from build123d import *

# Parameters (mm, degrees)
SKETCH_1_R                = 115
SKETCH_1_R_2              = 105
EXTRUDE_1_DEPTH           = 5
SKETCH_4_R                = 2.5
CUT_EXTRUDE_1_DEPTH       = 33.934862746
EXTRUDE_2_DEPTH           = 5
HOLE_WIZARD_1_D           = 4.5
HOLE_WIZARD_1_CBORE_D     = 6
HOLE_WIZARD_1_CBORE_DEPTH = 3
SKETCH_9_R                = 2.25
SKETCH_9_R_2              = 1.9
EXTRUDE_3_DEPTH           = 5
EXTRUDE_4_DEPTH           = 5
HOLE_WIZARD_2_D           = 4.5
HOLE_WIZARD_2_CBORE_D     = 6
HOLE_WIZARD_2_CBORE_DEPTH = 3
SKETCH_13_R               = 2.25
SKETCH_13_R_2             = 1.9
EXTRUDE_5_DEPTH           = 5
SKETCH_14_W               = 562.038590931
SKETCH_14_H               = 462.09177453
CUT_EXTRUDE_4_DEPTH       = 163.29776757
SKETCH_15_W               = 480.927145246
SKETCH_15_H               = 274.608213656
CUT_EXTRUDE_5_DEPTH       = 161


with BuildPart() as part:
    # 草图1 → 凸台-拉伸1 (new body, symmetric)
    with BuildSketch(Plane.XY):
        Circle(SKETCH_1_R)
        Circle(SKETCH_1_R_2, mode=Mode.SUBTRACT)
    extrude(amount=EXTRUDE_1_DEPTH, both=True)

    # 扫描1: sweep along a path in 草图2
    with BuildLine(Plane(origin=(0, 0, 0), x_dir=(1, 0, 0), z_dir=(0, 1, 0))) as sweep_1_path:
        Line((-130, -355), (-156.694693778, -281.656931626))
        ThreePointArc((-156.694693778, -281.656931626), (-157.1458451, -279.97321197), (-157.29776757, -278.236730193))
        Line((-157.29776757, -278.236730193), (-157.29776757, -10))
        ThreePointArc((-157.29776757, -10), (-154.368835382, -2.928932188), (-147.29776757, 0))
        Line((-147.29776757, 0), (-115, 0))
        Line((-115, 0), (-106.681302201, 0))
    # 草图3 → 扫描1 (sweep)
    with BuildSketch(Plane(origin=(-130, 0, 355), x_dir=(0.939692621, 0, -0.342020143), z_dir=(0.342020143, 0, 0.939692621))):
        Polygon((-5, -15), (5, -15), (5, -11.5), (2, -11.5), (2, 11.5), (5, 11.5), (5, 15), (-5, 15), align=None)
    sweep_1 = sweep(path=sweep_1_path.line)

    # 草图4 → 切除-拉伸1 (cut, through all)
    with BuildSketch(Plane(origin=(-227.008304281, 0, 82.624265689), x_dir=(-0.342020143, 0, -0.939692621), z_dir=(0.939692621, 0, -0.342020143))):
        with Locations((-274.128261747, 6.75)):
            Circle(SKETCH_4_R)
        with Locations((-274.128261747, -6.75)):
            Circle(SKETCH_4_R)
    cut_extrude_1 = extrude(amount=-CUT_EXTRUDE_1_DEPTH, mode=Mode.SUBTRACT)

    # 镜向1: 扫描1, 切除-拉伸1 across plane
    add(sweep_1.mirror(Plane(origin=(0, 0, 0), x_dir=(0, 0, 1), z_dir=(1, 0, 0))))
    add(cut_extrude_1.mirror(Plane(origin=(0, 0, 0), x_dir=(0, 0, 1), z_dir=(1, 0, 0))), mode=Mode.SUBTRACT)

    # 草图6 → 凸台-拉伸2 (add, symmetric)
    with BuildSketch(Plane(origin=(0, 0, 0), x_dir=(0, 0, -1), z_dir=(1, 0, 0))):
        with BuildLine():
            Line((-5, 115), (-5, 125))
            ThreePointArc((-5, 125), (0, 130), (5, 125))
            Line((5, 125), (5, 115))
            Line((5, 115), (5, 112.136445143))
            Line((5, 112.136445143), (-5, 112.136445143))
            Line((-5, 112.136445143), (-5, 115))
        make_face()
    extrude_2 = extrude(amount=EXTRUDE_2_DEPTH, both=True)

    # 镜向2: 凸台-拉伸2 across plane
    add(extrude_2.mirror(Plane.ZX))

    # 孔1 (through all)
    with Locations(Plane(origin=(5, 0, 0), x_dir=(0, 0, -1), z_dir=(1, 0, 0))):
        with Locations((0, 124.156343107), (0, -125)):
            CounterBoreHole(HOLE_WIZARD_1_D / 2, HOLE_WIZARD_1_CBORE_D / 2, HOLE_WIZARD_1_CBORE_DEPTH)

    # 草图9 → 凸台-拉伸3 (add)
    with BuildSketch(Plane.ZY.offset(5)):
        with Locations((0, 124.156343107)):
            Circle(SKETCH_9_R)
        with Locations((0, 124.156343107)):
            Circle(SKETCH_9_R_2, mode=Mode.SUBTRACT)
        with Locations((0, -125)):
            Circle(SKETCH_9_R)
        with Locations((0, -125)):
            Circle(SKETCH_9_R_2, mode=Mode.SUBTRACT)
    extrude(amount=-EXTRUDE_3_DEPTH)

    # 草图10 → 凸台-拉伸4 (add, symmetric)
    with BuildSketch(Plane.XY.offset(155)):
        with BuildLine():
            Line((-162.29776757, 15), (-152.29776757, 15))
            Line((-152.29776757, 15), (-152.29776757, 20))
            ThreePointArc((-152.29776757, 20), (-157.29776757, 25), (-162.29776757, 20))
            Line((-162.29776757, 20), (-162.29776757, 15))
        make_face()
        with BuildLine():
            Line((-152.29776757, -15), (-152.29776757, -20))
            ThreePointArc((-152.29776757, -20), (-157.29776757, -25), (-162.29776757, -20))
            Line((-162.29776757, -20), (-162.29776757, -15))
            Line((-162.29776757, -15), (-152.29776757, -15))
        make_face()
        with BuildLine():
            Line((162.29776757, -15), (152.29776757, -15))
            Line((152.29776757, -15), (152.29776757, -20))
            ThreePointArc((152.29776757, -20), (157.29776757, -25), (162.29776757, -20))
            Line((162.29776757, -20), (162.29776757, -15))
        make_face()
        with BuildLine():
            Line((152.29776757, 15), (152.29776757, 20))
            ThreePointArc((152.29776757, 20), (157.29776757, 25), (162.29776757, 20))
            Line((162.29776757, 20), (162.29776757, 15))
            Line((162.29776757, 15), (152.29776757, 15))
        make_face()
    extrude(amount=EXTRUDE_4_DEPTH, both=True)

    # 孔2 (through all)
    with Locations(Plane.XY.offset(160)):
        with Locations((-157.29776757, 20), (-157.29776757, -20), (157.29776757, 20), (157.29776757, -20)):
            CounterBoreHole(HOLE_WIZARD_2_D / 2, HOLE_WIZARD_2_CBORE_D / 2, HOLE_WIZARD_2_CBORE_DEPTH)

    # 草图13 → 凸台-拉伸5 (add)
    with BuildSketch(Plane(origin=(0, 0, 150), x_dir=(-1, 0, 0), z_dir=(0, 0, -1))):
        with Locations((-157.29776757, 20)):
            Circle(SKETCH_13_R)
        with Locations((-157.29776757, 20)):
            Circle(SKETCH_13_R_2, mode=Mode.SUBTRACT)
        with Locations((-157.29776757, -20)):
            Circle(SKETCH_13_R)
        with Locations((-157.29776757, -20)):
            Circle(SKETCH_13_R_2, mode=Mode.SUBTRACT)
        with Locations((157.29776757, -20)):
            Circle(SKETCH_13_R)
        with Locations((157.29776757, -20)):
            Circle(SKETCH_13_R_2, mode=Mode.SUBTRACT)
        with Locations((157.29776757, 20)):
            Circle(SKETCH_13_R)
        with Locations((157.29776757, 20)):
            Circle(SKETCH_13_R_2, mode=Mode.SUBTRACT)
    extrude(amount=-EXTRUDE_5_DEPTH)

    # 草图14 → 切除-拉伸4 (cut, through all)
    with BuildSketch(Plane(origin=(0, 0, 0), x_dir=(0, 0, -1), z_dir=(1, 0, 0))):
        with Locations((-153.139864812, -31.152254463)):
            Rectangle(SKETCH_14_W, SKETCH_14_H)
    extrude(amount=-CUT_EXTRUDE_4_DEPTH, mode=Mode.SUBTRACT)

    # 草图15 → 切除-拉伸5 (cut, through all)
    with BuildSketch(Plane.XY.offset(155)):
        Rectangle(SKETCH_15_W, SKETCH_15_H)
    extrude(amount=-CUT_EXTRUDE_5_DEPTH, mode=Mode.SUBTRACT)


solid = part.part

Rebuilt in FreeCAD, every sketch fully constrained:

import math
import FreeCAD as App
import Part
import Sketcher
Q = App.Units.Quantity

doc = App.newDocument("Part")
body = doc.addObject("PartDesign::Body", "Body")

# Sketch on XY plane
sketch1 = body.newObject("Sketcher::SketchObject", "Sketch")
sketch1.AttachmentSupport = (doc.getObject("XY_Plane"), [""])
sketch1.MapMode = "FlatFace"
sketch1.addGeometry(Part.Circle(App.Vector(0, 0, 0), App.Vector(0, 0, 1), 115), False)
sketch1.addGeometry(Part.Circle(App.Vector(0, 0, 0), App.Vector(0, 0, 1), 105), False)
sketch1.addConstraint(Sketcher.Constraint("Coincident", 0, 3, -1, 1))
sketch1.addConstraint(Sketcher.Constraint("Coincident", 1, 3, -1, 1))
sketch1.addConstraint(Sketcher.Constraint("Diameter", 0, Q("230 mm")))
sketch1.addConstraint(Sketcher.Constraint("Diameter", 1, Q("210 mm")))
pad1 = body.newObject("PartDesign::Pad", "Pad")
pad1.Profile = sketch1
pad1.Length = 10
pad1.Midplane = True

# Sketch on an angled plane
sketch2 = body.newObject("Sketcher::SketchObject", "Sketch001")
sketch2.Placement = App.Placement(App.Vector(-130, 0, 355), App.Rotation(App.Vector(0.939692621, 0, -0.342020143), App.Vector(0, 1, 0), App.Vector(0.342020143, 0, 0.939692621), "ZXY"))
sketch2.addGeometry(Part.LineSegment(App.Vector(-5, -15, 0), App.Vector(5, -15, 0)), False)
sketch2.addGeometry(Part.LineSegment(App.Vector(5, -15, 0), App.Vector(5, -11.5, 0)), False)
sketch2.addGeometry(Part.LineSegment(App.Vector(5, -11.5, 0), App.Vector(2, -11.5, 0)), False)
sketch2.addGeometry(Part.LineSegment(App.Vector(2, -11.5, 0), App.Vector(2, 11.5, 0)), False)
sketch2.addGeometry(Part.LineSegment(App.Vector(2, 11.5, 0), App.Vector(5, 11.5, 0)), False)
sketch2.addGeometry(Part.LineSegment(App.Vector(5, 11.5, 0), App.Vector(5, 15, 0)), False)
sketch2.addGeometry(Part.LineSegment(App.Vector(5, 15, 0), App.Vector(-5, 15, 0)), False)
sketch2.addGeometry(Part.LineSegment(App.Vector(-5, 15, 0), App.Vector(-5, -15, 0)), False)
sketch2.addConstraint(Sketcher.Constraint("Coincident", 0, 2, 1, 1))
sketch2.addConstraint(Sketcher.Constraint("Coincident", 1, 2, 2, 1))
sketch2.addConstraint(Sketcher.Constraint("Coincident", 2, 2, 3, 1))
sketch2.addConstraint(Sketcher.Constraint("Coincident", 3, 2, 4, 1))
sketch2.addConstraint(Sketcher.Constraint("Coincident", 4, 2, 5, 1))
sketch2.addConstraint(Sketcher.Constraint("Coincident", 5, 2, 6, 1))
sketch2.addConstraint(Sketcher.Constraint("Coincident", 6, 2, 7, 1))
sketch2.addConstraint(Sketcher.Constraint("Coincident", 7, 2, 0, 1))
sketch2.addConstraint(Sketcher.Constraint("Horizontal", 0))
sketch2.addConstraint(Sketcher.Constraint("Vertical", 1))
sketch2.addConstraint(Sketcher.Constraint("Horizontal", 2))
sketch2.addConstraint(Sketcher.Constraint("Vertical", 3))
sketch2.addConstraint(Sketcher.Constraint("Horizontal", 4))
sketch2.addConstraint(Sketcher.Constraint("Vertical", 5))
sketch2.addConstraint(Sketcher.Constraint("Horizontal", 6))
sketch2.addConstraint(Sketcher.Constraint("Vertical", 7))
sketch2.addConstraint(Sketcher.Constraint("Symmetric", 0, 2, 6, 2, -1, 1))
sketch2.addConstraint(Sketcher.Constraint("Symmetric", 1, 2, 4, 2, -1))
sketch2.addConstraint(Sketcher.Constraint("DistanceX", 0, 1, 0, 2, Q("10 mm")))
sketch2.addConstraint(Sketcher.Constraint("DistanceX", 2, 2, 2, 1, Q("3 mm")))
sketch2.addConstraint(Sketcher.Constraint("DistanceY", 3, 1, 3, 2, Q("23 mm")))
sketch2.addConstraint(Sketcher.Constraint("DistanceY", 7, 2, 7, 1, Q("30 mm")))

# Sketch on XZ plane
sketch3 = body.newObject("Sketcher::SketchObject", "Sketch002")
sketch3.AttachmentSupport = (doc.getObject("XZ_Plane"), [""])
sketch3.MapMode = "FlatFace"
sketch3.addGeometry(Part.LineSegment(App.Vector(-130, 355, 0), App.Vector(-156.7, 281.7, 0)), False)
sketch3.addGeometry(Part.ArcOfCircle(Part.Circle(App.Vector(-147.3, 278.2, 0), App.Vector(0, 0, 1), 10), math.radians(160), math.radians(180)), False)
sketch3.addGeometry(Part.LineSegment(App.Vector(-157.3, 278.2, 0), App.Vector(-157.3, 10, 0)), False)
sketch3.addGeometry(Part.ArcOfCircle(Part.Circle(App.Vector(-147.3, 10, 0), App.Vector(0, 0, 1), 10), math.radians(180), math.radians(270)), False)
sketch3.addGeometry(Part.LineSegment(App.Vector(-147.3, 0, 0), App.Vector(-106.7, 0, 0)), False)
sketch3.addConstraint(Sketcher.Constraint("Tangent", 0, 2, 1, 1))
sketch3.addConstraint(Sketcher.Constraint("Tangent", 1, 2, 2, 1))
sketch3.addConstraint(Sketcher.Constraint("Tangent", 2, 2, 3, 1))
sketch3.addConstraint(Sketcher.Constraint("Tangent", 3, 2, 4, 1))
sketch3.addConstraint(Sketcher.Constraint("Vertical", 2))
sketch3.addConstraint(Sketcher.Constraint("Horizontal", 4))
sketch3.addConstraint(Sketcher.Constraint("Equal", 1, 3))
sketch3.addConstraint(Sketcher.Constraint("PointOnObject", 3, 2, -1))
sketch3.addConstraint(Sketcher.Constraint("Radius", 1, Q("10 mm")))
sketch3.addConstraint(Sketcher.Constraint("Angle", 0, Q("-110 deg")))
sketch3.addConstraint(Sketcher.Constraint("DistanceX", 0, 1, -1, 1, Q("130 mm")))
sketch3.addConstraint(Sketcher.Constraint("DistanceY", -1, 1, 0, 1, Q("355 mm")))
sketch3.addConstraint(Sketcher.Constraint("DistanceY", 2, 2, 2, 1, Q("268.23673 mm")))
sketch3.addConstraint(Sketcher.Constraint("DistanceX", 4, 1, 4, 2, Q("40.616465 mm")))
doc.recompute()

additivepipe = body.newObject("PartDesign::AdditivePipe", "AdditivePipe")
additivepipe.Profile = sketch2
additivepipe.Spine = (sketch3, ["Edge1", "Edge2", "Edge3", "Edge4", "Edge5"])

# Sketch on an angled plane
sketch4 = body.newObject("Sketcher::SketchObject", "Sketch003")
sketch4.Placement = App.Placement(App.Vector(-227.008304, 0, 82.624266), App.Rotation(App.Vector(-0.342020143, 0, -0.939692621), App.Vector(0, 1, 0), App.Vector(0.939692621, 0, -0.342020143), "ZXY"))
sketch4.addGeometry(Part.Circle(App.Vector(-274.1, 6.8, 0), App.Vector(0, 0, 1), 2.5), False)
sketch4.addGeometry(Part.Circle(App.Vector(-274.1, -6.8, 0), App.Vector(0, 0, 1), 2.5), False)
sketch4.addConstraint(Sketcher.Constraint("Equal", 0, 1))
sketch4.addConstraint(Sketcher.Constraint("Symmetric", 0, 3, 1, 3, -1))
sketch4.addConstraint(Sketcher.Constraint("Diameter", 0, Q("5 mm")))
sketch4.addConstraint(Sketcher.Constraint("DistanceY", 1, 3, 0, 3, Q("13.5 mm")))
sketch4.addConstraint(Sketcher.Constraint("DistanceX", 0, 3, -1, 1, Q("274.128262 mm")))
pocket1 = body.newObject("PartDesign::Pocket", "Pocket")
pocket1.Profile = sketch4
pocket1.Type = "ThroughAll"
doc.recompute()

mirrored = body.newObject("PartDesign::Mirrored", "Mirrored")
mirrored.Originals = [additivepipe, pocket1]
mirrored.MirrorPlane = (doc.getObject("YZ_Plane"), [""])
body.Tip = mirrored

# Sketch on YZ plane
sketch5 = body.newObject("Sketcher::SketchObject", "Sketch004")
sketch5.AttachmentSupport = (doc.getObject("YZ_Plane"), [""])
sketch5.MapMode = "FlatFace"
sketch5.addGeometry(Part.ArcOfCircle(Part.Circle(App.Vector(125, 0, 0), App.Vector(0, 0, 1), 5), math.radians(-90), math.radians(90)), False)
sketch5.addGeometry(Part.LineSegment(App.Vector(125, 5, 0), App.Vector(112, 5, 0)), False)
sketch5.addGeometry(Part.LineSegment(App.Vector(112, 5, 0), App.Vector(112, -5, 0)), False)
sketch5.addGeometry(Part.LineSegment(App.Vector(112, -5, 0), App.Vector(125, -5, 0)), False)
sketch5.addConstraint(Sketcher.Constraint("Tangent", 0, 2, 1, 1))
sketch5.addConstraint(Sketcher.Constraint("Coincident", 1, 2, 2, 1))
sketch5.addConstraint(Sketcher.Constraint("Coincident", 2, 2, 3, 1))
sketch5.addConstraint(Sketcher.Constraint("Tangent", 3, 2, 0, 1))
sketch5.addConstraint(Sketcher.Constraint("Horizontal", 1))
sketch5.addConstraint(Sketcher.Constraint("Vertical", 2))
sketch5.addConstraint(Sketcher.Constraint("Horizontal", 3))
sketch5.addConstraint(Sketcher.Constraint("PointOnObject", 0, 3, -1))
sketch5.addConstraint(Sketcher.Constraint("Radius", 0, Q("5 mm")))
sketch5.addConstraint(Sketcher.Constraint("DistanceX", -1, 1, 0, 3, Q("125 mm")))
sketch5.addConstraint(Sketcher.Constraint("DistanceX", 1, 2, 1, 1, Q("12.863555 mm")))
pad2 = body.newObject("PartDesign::Pad", "Pad001")
pad2.Profile = sketch5
pad2.Length = 10
pad2.Midplane = True
doc.recompute()

mirrored2 = body.newObject("PartDesign::Mirrored", "Mirrored001")
mirrored2.Originals = [pad2]
mirrored2.MirrorPlane = (doc.getObject("XZ_Plane"), [""])
body.Tip = mirrored2

# Sketch on YZ plane
sketch6 = body.newObject("Sketcher::SketchObject", "Sketch005")
sketch6.AttachmentSupport = (doc.getObject("YZ_Plane"), [""])
sketch6.MapMode = "FlatFace"
sketch6.AttachmentOffset = App.Placement(App.Vector(0, 0, 5), App.Rotation())
sketch6.addGeometry(Part.Circle(App.Vector(124.2, 0, 0), App.Vector(0, 0, 1), 2.2), False)
sketch6.addGeometry(Part.Circle(App.Vector(-125, 0, 0), App.Vector(0, 0, 1), 2.2), False)
sketch6.addConstraint(Sketcher.Constraint("Equal", 0, 1))
sketch6.addConstraint(Sketcher.Constraint("PointOnObject", 0, 3, -1))
sketch6.addConstraint(Sketcher.Constraint("PointOnObject", 1, 3, -1))
sketch6.addConstraint(Sketcher.Constraint("Diameter", 0, Q("4.5 mm")))
sketch6.addConstraint(Sketcher.Constraint("DistanceX", 1, 3, -1, 1, Q("125 mm")))
sketch6.addConstraint(Sketcher.Constraint("DistanceX", -1, 1, 0, 3, Q("124.156343 mm")))
doc.recompute()
hole = body.newObject("PartDesign::Hole", "Hole")
hole.Profile = sketch6
hole.ThreadType = "None"
hole.Diameter = 4.5
hole.DepthType = "ThroughAll"
hole.HoleCutType = "Counterbore"
hole.HoleCutDiameter = 6
hole.HoleCutDepth = 3

# Sketch on YZ plane
sketch7 = body.newObject("Sketcher::SketchObject", "Sketch006")
sketch7.AttachmentSupport = (doc.getObject("YZ_Plane"), [""])
sketch7.MapMode = "FlatFace"
sketch7.AttachmentOffset = App.Placement(App.Vector(0, 0, -5), App.Rotation())
sketch7.addGeometry(Part.Circle(App.Vector(124.2, 0, 0), App.Vector(0, 0, 1), 2.2), False)
sketch7.addGeometry(Part.Circle(App.Vector(124.2, 0, 0), App.Vector(0, 0, 1), 1.9), False)
sketch7.addGeometry(Part.Circle(App.Vector(-125, 0, 0), App.Vector(0, 0, 1), 2.2), False)
sketch7.addGeometry(Part.Circle(App.Vector(-125, 0, 0), App.Vector(0, 0, 1), 1.9), False)
sketch7.addConstraint(Sketcher.Constraint("Coincident", 1, 3, 0, 3))
sketch7.addConstraint(Sketcher.Constraint("Coincident", 3, 3, 2, 3))
sketch7.addConstraint(Sketcher.Constraint("Equal", 0, 2))
sketch7.addConstraint(Sketcher.Constraint("Equal", 1, 3))
sketch7.addConstraint(Sketcher.Constraint("PointOnObject", 0, 3, -1))
sketch7.addConstraint(Sketcher.Constraint("PointOnObject", 2, 3, -1))
sketch7.addConstraint(Sketcher.Constraint("Diameter", 0, Q("4.5 mm")))
sketch7.addConstraint(Sketcher.Constraint("Diameter", 1, Q("3.8 mm")))
sketch7.addConstraint(Sketcher.Constraint("DistanceX", 2, 3, -1, 1, Q("125 mm")))
sketch7.addConstraint(Sketcher.Constraint("DistanceX", -1, 1, 0, 3, Q("124.156343 mm")))
pad3 = body.newObject("PartDesign::Pad", "Pad002")
pad3.Profile = sketch7
pad3.Length = 5

# Sketch on XY plane
sketch8 = body.newObject("Sketcher::SketchObject", "Sketch007")
sketch8.AttachmentSupport = (doc.getObject("XY_Plane"), [""])
sketch8.MapMode = "FlatFace"
sketch8.AttachmentOffset = App.Placement(App.Vector(0, 0, 155), App.Rotation())
sketch8.addGeometry(Part.LineSegment(App.Vector(-162, 15, 0), App.Vector(-152, 15, 0)), False)
sketch8.addGeometry(Part.LineSegment(App.Vector(-152, 15, 0), App.Vector(-152, 20, 0)), False)
sketch8.addGeometry(Part.ArcOfCircle(Part.Circle(App.Vector(-157, 20, 0), App.Vector(0, 0, 1), 5), math.radians(0), math.radians(180)), False)
sketch8.addGeometry(Part.LineSegment(App.Vector(-162, 20, 0), App.Vector(-162, 15, 0)), False)
sketch8.addGeometry(Part.LineSegment(App.Vector(-152, -20, 0), App.Vector(-152, -15, 0)), False)
sketch8.addGeometry(Part.LineSegment(App.Vector(-152, -15, 0), App.Vector(-162, -15, 0)), False)
sketch8.addGeometry(Part.LineSegment(App.Vector(-162, -15, 0), App.Vector(-162, -20, 0)), False)
sketch8.addGeometry(Part.ArcOfCircle(Part.Circle(App.Vector(-157, -20, 0), App.Vector(0, 0, 1), 5), math.radians(180), math.radians(360)), False)
sketch8.addGeometry(Part.LineSegment(App.Vector(162, -15, 0), App.Vector(152, -15, 0)), False)
sketch8.addGeometry(Part.LineSegment(App.Vector(152, -15, 0), App.Vector(152, -20, 0)), False)
sketch8.addGeometry(Part.ArcOfCircle(Part.Circle(App.Vector(157, -20, 0), App.Vector(0, 0, 1), 5), math.radians(180), math.radians(360)), False)
sketch8.addGeometry(Part.LineSegment(App.Vector(162, -20, 0), App.Vector(162, -15, 0)), False)
sketch8.addGeometry(Part.LineSegment(App.Vector(152, 20, 0), App.Vector(152, 15, 0)), False)
sketch8.addGeometry(Part.LineSegment(App.Vector(152, 15, 0), App.Vector(162, 15, 0)), False)
sketch8.addGeometry(Part.LineSegment(App.Vector(162, 15, 0), App.Vector(162, 20, 0)), False)
sketch8.addGeometry(Part.ArcOfCircle(Part.Circle(App.Vector(157, 20, 0), App.Vector(0, 0, 1), 5), math.radians(0), math.radians(180)), False)
sketch8.addConstraint(Sketcher.Constraint("Coincident", 0, 2, 1, 1))
sketch8.addConstraint(Sketcher.Constraint("Tangent", 1, 2, 2, 1))
sketch8.addConstraint(Sketcher.Constraint("Tangent", 2, 2, 3, 1))
sketch8.addConstraint(Sketcher.Constraint("Coincident", 3, 2, 0, 1))
sketch8.addConstraint(Sketcher.Constraint("Coincident", 4, 2, 5, 1))
sketch8.addConstraint(Sketcher.Constraint("Coincident", 5, 2, 6, 1))
sketch8.addConstraint(Sketcher.Constraint("Tangent", 6, 2, 7, 1))
sketch8.addConstraint(Sketcher.Constraint("Tangent", 7, 2, 4, 1))
sketch8.addConstraint(Sketcher.Constraint("Coincident", 8, 2, 9, 1))
sketch8.addConstraint(Sketcher.Constraint("Tangent", 9, 2, 10, 1))
sketch8.addConstraint(Sketcher.Constraint("Tangent", 10, 2, 11, 1))
sketch8.addConstraint(Sketcher.Constraint("Coincident", 11, 2, 8, 1))
sketch8.addConstraint(Sketcher.Constraint("Coincident", 12, 2, 13, 1))
sketch8.addConstraint(Sketcher.Constraint("Coincident", 13, 2, 14, 1))
sketch8.addConstraint(Sketcher.Constraint("Tangent", 14, 2, 15, 1))
sketch8.addConstraint(Sketcher.Constraint("Tangent", 15, 2, 12, 1))
sketch8.addConstraint(Sketcher.Constraint("Horizontal", 0))
sketch8.addConstraint(Sketcher.Constraint("Vertical", 1))
sketch8.addConstraint(Sketcher.Constraint("Vertical", 3))
sketch8.addConstraint(Sketcher.Constraint("Vertical", 4))
sketch8.addConstraint(Sketcher.Constraint("Horizontal", 5))
sketch8.addConstraint(Sketcher.Constraint("Vertical", 6))
sketch8.addConstraint(Sketcher.Constraint("Horizontal", 8))
sketch8.addConstraint(Sketcher.Constraint("Vertical", 9))
sketch8.addConstraint(Sketcher.Constraint("Vertical", 11))
sketch8.addConstraint(Sketcher.Constraint("Vertical", 12))
sketch8.addConstraint(Sketcher.Constraint("Horizontal", 13))
sketch8.addConstraint(Sketcher.Constraint("Vertical", 14))
sketch8.addConstraint(Sketcher.Constraint("Equal", 2, 7))
sketch8.addConstraint(Sketcher.Constraint("Equal", 7, 10))
sketch8.addConstraint(Sketcher.Constraint("Equal", 10, 15))
sketch8.addConstraint(Sketcher.Constraint("Symmetric", 2, 3, 10, 3, -1, 1))
sketch8.addConstraint(Sketcher.Constraint("Symmetric", 7, 3, 15, 3, -1, 1))
sketch8.addConstraint(Sketcher.Constraint("Symmetric", 7, 3, 10, 3, -2))
sketch8.addConstraint(Sketcher.Constraint("Horizontal", 5, 2, 8, 2))
sketch8.addConstraint(Sketcher.Constraint("Horizontal", 3, 2, 12, 2))
sketch8.addConstraint(Sketcher.Constraint("Equal", 3, 4))
sketch8.addConstraint(Sketcher.Constraint("Radius", 2, Q("5 mm")))
sketch8.addConstraint(Sketcher.Constraint("DistanceY", 1, 1, 1, 2, Q("5 mm")))
sketch8.addConstraint(Sketcher.Constraint("DistanceY", -1, 1, 2, 3, Q("20 mm")))
sketch8.addConstraint(Sketcher.Constraint("DistanceX", 2, 3, -1, 1, Q("157.297768 mm")))
pad4 = body.newObject("PartDesign::Pad", "Pad003")
pad4.Profile = sketch8
pad4.Length = 10
pad4.Midplane = True

# Sketch on XY plane
sketch9 = body.newObject("Sketcher::SketchObject", "Sketch008")
sketch9.AttachmentSupport = (doc.getObject("XY_Plane"), [""])
sketch9.MapMode = "FlatFace"
sketch9.AttachmentOffset = App.Placement(App.Vector(0, 0, 160), App.Rotation())
sketch9.addGeometry(Part.Circle(App.Vector(-157.3, 20, 0), App.Vector(0, 0, 1), 2.2), False)
sketch9.addGeometry(Part.Circle(App.Vector(-157.3, -20, 0), App.Vector(0, 0, 1), 2.2), False)
sketch9.addGeometry(Part.Circle(App.Vector(157.3, 20, 0), App.Vector(0, 0, 1), 2.2), False)
sketch9.addGeometry(Part.Circle(App.Vector(157.3, -20, 0), App.Vector(0, 0, 1), 2.2), False)
sketch9.addConstraint(Sketcher.Constraint("Equal", 0, 1))
sketch9.addConstraint(Sketcher.Constraint("Equal", 1, 2))
sketch9.addConstraint(Sketcher.Constraint("Equal", 2, 3))
sketch9.addConstraint(Sketcher.Constraint("Symmetric", 1, 3, 2, 3, -1, 1))
sketch9.addConstraint(Sketcher.Constraint("Symmetric", 0, 3, 3, 3, -1, 1))
sketch9.addConstraint(Sketcher.Constraint("Symmetric", 0, 3, 2, 3, -2))
sketch9.addConstraint(Sketcher.Constraint("Diameter", 0, Q("4.5 mm")))
sketch9.addConstraint(Sketcher.Constraint("DistanceY", -1, 1, 0, 3, Q("20 mm")))
sketch9.addConstraint(Sketcher.Constraint("DistanceX", 0, 3, -1, 1, Q("157.297768 mm")))
doc.recompute()
hole2 = body.newObject("PartDesign::Hole", "Hole001")
hole2.Profile = sketch9
hole2.ThreadType = "None"
hole2.Diameter = 4.5
hole2.DepthType = "ThroughAll"
hole2.HoleCutType = "Counterbore"
hole2.HoleCutDiameter = 6
hole2.HoleCutDepth = 3

# Sketch on XY plane
sketch10 = body.newObject("Sketcher::SketchObject", "Sketch009")
sketch10.AttachmentSupport = (doc.getObject("XY_Plane"), [""])
sketch10.MapMode = "FlatFace"
sketch10.AttachmentOffset = App.Placement(App.Vector(0, 0, 150), App.Rotation())
sketch10.addGeometry(Part.Circle(App.Vector(157.3, 20, 0), App.Vector(0, 0, 1), 2.2), False)
sketch10.addGeometry(Part.Circle(App.Vector(157.3, 20, 0), App.Vector(0, 0, 1), 1.9), False)
sketch10.addGeometry(Part.Circle(App.Vector(157.3, -20, 0), App.Vector(0, 0, 1), 2.2), False)
sketch10.addGeometry(Part.Circle(App.Vector(157.3, -20, 0), App.Vector(0, 0, 1), 1.9), False)
sketch10.addGeometry(Part.Circle(App.Vector(-157.3, -20, 0), App.Vector(0, 0, 1), 2.2), False)
sketch10.addGeometry(Part.Circle(App.Vector(-157.3, -20, 0), App.Vector(0, 0, 1), 1.9), False)
sketch10.addGeometry(Part.Circle(App.Vector(-157.3, 20, 0), App.Vector(0, 0, 1), 2.2), False)
sketch10.addGeometry(Part.Circle(App.Vector(-157.3, 20, 0), App.Vector(0, 0, 1), 1.9), False)
sketch10.addConstraint(Sketcher.Constraint("Coincident", 1, 3, 0, 3))
sketch10.addConstraint(Sketcher.Constraint("Coincident", 3, 3, 2, 3))
sketch10.addConstraint(Sketcher.Constraint("Coincident", 5, 3, 4, 3))
sketch10.addConstraint(Sketcher.Constraint("Coincident", 7, 3, 6, 3))
sketch10.addConstraint(Sketcher.Constraint("Equal", 0, 2))
sketch10.addConstraint(Sketcher.Constraint("Equal", 1, 3))
sketch10.addConstraint(Sketcher.Constraint("Equal", 2, 4))
sketch10.addConstraint(Sketcher.Constraint("Equal", 3, 5))
sketch10.addConstraint(Sketcher.Constraint("Equal", 4, 6))
sketch10.addConstraint(Sketcher.Constraint("Equal", 5, 7))
sketch10.addConstraint(Sketcher.Constraint("Symmetric", 0, 3, 4, 3, -1, 1))
sketch10.addConstraint(Sketcher.Constraint("Symmetric", 2, 3, 6, 3, -1, 1))
sketch10.addConstraint(Sketcher.Constraint("Symmetric", 2, 3, 4, 3, -2))
sketch10.addConstraint(Sketcher.Constraint("Diameter", 0, Q("4.5 mm")))
sketch10.addConstraint(Sketcher.Constraint("Diameter", 1, Q("3.8 mm")))
sketch10.addConstraint(Sketcher.Constraint("DistanceY", -1, 1, 0, 3, Q("20 mm")))
sketch10.addConstraint(Sketcher.Constraint("DistanceX", -1, 1, 0, 3, Q("157.297768 mm")))
pad5 = body.newObject("PartDesign::Pad", "Pad004")
pad5.Profile = sketch10
pad5.Length = 5

# Sketch on YZ plane
sketch11 = body.newObject("Sketcher::SketchObject", "Sketch010")
sketch11.AttachmentSupport = (doc.getObject("YZ_Plane"), [""])
sketch11.MapMode = "FlatFace"
sketch11.addGeometry(Part.LineSegment(App.Vector(200, 434, 0), App.Vector(-262, 434, 0)), False)
sketch11.addGeometry(Part.LineSegment(App.Vector(-262, 434, 0), App.Vector(-262, -128, 0)), False)
sketch11.addGeometry(Part.LineSegment(App.Vector(-262, -128, 0), App.Vector(200, -128, 0)), False)
sketch11.addGeometry(Part.LineSegment(App.Vector(200, -128, 0), App.Vector(200, 434, 0)), False)
sketch11.addConstraint(Sketcher.Constraint("Coincident", 0, 2, 1, 1))
sketch11.addConstraint(Sketcher.Constraint("Coincident", 1, 2, 2, 1))
sketch11.addConstraint(Sketcher.Constraint("Coincident", 2, 2, 3, 1))
sketch11.addConstraint(Sketcher.Constraint("Coincident", 3, 2, 0, 1))
sketch11.addConstraint(Sketcher.Constraint("Horizontal", 0))
sketch11.addConstraint(Sketcher.Constraint("Vertical", 1))
sketch11.addConstraint(Sketcher.Constraint("Horizontal", 2))
sketch11.addConstraint(Sketcher.Constraint("Vertical", 3))
sketch11.addConstraint(Sketcher.Constraint("DistanceY", 1, 2, 1, 1, Q("562.038591 mm")))
sketch11.addConstraint(Sketcher.Constraint("DistanceX", 0, 2, 0, 1, Q("462.091775 mm")))
sketch11.addConstraint(Sketcher.Constraint("DistanceX", 0, 2, -1, 1, Q("262.198142 mm")))
sketch11.addConstraint(Sketcher.Constraint("DistanceY", -1, 1, 0, 2, Q("434.15916 mm")))
pocket2 = body.newObject("PartDesign::Pocket", "Pocket001")
pocket2.Profile = sketch11
pocket2.Type = "ThroughAll"

# Sketch on XY plane
sketch12 = body.newObject("Sketcher::SketchObject", "Sketch011")
sketch12.AttachmentSupport = (doc.getObject("XY_Plane"), [""])
sketch12.MapMode = "FlatFace"
sketch12.AttachmentOffset = App.Placement(App.Vector(0, 0, 155), App.Rotation())
sketch12.addGeometry(Part.LineSegment(App.Vector(-240, 137, 0), App.Vector(-240, -137, 0)), False)
sketch12.addGeometry(Part.LineSegment(App.Vector(-240, -137, 0), App.Vector(240, -137, 0)), False)
sketch12.addGeometry(Part.LineSegment(App.Vector(240, -137, 0), App.Vector(240, 137, 0)), False)
sketch12.addGeometry(Part.LineSegment(App.Vector(240, 137, 0), App.Vector(-240, 137, 0)), False)
sketch12.addConstraint(Sketcher.Constraint("Coincident", 0, 2, 1, 1))
sketch12.addConstraint(Sketcher.Constraint("Coincident", 1, 2, 2, 1))
sketch12.addConstraint(Sketcher.Constraint("Coincident", 2, 2, 3, 1))
sketch12.addConstraint(Sketcher.Constraint("Coincident", 3, 2, 0, 1))
sketch12.addConstraint(Sketcher.Constraint("Vertical", 0))
sketch12.addConstraint(Sketcher.Constraint("Horizontal", 1))
sketch12.addConstraint(Sketcher.Constraint("Vertical", 2))
sketch12.addConstraint(Sketcher.Constraint("Horizontal", 3))
sketch12.addConstraint(Sketcher.Constraint("Symmetric", 0, 2, 2, 2, -1, 1))
sketch12.addConstraint(Sketcher.Constraint("DistanceX", 1, 1, 1, 2, Q("480.927145 mm")))
sketch12.addConstraint(Sketcher.Constraint("DistanceY", 0, 2, 0, 1, Q("274.608214 mm")))
pocket3 = body.newObject("PartDesign::Pocket", "Pocket002")
pocket3.Profile = sketch12
pocket3.Type = "ThroughAll"

doc.recompute()
